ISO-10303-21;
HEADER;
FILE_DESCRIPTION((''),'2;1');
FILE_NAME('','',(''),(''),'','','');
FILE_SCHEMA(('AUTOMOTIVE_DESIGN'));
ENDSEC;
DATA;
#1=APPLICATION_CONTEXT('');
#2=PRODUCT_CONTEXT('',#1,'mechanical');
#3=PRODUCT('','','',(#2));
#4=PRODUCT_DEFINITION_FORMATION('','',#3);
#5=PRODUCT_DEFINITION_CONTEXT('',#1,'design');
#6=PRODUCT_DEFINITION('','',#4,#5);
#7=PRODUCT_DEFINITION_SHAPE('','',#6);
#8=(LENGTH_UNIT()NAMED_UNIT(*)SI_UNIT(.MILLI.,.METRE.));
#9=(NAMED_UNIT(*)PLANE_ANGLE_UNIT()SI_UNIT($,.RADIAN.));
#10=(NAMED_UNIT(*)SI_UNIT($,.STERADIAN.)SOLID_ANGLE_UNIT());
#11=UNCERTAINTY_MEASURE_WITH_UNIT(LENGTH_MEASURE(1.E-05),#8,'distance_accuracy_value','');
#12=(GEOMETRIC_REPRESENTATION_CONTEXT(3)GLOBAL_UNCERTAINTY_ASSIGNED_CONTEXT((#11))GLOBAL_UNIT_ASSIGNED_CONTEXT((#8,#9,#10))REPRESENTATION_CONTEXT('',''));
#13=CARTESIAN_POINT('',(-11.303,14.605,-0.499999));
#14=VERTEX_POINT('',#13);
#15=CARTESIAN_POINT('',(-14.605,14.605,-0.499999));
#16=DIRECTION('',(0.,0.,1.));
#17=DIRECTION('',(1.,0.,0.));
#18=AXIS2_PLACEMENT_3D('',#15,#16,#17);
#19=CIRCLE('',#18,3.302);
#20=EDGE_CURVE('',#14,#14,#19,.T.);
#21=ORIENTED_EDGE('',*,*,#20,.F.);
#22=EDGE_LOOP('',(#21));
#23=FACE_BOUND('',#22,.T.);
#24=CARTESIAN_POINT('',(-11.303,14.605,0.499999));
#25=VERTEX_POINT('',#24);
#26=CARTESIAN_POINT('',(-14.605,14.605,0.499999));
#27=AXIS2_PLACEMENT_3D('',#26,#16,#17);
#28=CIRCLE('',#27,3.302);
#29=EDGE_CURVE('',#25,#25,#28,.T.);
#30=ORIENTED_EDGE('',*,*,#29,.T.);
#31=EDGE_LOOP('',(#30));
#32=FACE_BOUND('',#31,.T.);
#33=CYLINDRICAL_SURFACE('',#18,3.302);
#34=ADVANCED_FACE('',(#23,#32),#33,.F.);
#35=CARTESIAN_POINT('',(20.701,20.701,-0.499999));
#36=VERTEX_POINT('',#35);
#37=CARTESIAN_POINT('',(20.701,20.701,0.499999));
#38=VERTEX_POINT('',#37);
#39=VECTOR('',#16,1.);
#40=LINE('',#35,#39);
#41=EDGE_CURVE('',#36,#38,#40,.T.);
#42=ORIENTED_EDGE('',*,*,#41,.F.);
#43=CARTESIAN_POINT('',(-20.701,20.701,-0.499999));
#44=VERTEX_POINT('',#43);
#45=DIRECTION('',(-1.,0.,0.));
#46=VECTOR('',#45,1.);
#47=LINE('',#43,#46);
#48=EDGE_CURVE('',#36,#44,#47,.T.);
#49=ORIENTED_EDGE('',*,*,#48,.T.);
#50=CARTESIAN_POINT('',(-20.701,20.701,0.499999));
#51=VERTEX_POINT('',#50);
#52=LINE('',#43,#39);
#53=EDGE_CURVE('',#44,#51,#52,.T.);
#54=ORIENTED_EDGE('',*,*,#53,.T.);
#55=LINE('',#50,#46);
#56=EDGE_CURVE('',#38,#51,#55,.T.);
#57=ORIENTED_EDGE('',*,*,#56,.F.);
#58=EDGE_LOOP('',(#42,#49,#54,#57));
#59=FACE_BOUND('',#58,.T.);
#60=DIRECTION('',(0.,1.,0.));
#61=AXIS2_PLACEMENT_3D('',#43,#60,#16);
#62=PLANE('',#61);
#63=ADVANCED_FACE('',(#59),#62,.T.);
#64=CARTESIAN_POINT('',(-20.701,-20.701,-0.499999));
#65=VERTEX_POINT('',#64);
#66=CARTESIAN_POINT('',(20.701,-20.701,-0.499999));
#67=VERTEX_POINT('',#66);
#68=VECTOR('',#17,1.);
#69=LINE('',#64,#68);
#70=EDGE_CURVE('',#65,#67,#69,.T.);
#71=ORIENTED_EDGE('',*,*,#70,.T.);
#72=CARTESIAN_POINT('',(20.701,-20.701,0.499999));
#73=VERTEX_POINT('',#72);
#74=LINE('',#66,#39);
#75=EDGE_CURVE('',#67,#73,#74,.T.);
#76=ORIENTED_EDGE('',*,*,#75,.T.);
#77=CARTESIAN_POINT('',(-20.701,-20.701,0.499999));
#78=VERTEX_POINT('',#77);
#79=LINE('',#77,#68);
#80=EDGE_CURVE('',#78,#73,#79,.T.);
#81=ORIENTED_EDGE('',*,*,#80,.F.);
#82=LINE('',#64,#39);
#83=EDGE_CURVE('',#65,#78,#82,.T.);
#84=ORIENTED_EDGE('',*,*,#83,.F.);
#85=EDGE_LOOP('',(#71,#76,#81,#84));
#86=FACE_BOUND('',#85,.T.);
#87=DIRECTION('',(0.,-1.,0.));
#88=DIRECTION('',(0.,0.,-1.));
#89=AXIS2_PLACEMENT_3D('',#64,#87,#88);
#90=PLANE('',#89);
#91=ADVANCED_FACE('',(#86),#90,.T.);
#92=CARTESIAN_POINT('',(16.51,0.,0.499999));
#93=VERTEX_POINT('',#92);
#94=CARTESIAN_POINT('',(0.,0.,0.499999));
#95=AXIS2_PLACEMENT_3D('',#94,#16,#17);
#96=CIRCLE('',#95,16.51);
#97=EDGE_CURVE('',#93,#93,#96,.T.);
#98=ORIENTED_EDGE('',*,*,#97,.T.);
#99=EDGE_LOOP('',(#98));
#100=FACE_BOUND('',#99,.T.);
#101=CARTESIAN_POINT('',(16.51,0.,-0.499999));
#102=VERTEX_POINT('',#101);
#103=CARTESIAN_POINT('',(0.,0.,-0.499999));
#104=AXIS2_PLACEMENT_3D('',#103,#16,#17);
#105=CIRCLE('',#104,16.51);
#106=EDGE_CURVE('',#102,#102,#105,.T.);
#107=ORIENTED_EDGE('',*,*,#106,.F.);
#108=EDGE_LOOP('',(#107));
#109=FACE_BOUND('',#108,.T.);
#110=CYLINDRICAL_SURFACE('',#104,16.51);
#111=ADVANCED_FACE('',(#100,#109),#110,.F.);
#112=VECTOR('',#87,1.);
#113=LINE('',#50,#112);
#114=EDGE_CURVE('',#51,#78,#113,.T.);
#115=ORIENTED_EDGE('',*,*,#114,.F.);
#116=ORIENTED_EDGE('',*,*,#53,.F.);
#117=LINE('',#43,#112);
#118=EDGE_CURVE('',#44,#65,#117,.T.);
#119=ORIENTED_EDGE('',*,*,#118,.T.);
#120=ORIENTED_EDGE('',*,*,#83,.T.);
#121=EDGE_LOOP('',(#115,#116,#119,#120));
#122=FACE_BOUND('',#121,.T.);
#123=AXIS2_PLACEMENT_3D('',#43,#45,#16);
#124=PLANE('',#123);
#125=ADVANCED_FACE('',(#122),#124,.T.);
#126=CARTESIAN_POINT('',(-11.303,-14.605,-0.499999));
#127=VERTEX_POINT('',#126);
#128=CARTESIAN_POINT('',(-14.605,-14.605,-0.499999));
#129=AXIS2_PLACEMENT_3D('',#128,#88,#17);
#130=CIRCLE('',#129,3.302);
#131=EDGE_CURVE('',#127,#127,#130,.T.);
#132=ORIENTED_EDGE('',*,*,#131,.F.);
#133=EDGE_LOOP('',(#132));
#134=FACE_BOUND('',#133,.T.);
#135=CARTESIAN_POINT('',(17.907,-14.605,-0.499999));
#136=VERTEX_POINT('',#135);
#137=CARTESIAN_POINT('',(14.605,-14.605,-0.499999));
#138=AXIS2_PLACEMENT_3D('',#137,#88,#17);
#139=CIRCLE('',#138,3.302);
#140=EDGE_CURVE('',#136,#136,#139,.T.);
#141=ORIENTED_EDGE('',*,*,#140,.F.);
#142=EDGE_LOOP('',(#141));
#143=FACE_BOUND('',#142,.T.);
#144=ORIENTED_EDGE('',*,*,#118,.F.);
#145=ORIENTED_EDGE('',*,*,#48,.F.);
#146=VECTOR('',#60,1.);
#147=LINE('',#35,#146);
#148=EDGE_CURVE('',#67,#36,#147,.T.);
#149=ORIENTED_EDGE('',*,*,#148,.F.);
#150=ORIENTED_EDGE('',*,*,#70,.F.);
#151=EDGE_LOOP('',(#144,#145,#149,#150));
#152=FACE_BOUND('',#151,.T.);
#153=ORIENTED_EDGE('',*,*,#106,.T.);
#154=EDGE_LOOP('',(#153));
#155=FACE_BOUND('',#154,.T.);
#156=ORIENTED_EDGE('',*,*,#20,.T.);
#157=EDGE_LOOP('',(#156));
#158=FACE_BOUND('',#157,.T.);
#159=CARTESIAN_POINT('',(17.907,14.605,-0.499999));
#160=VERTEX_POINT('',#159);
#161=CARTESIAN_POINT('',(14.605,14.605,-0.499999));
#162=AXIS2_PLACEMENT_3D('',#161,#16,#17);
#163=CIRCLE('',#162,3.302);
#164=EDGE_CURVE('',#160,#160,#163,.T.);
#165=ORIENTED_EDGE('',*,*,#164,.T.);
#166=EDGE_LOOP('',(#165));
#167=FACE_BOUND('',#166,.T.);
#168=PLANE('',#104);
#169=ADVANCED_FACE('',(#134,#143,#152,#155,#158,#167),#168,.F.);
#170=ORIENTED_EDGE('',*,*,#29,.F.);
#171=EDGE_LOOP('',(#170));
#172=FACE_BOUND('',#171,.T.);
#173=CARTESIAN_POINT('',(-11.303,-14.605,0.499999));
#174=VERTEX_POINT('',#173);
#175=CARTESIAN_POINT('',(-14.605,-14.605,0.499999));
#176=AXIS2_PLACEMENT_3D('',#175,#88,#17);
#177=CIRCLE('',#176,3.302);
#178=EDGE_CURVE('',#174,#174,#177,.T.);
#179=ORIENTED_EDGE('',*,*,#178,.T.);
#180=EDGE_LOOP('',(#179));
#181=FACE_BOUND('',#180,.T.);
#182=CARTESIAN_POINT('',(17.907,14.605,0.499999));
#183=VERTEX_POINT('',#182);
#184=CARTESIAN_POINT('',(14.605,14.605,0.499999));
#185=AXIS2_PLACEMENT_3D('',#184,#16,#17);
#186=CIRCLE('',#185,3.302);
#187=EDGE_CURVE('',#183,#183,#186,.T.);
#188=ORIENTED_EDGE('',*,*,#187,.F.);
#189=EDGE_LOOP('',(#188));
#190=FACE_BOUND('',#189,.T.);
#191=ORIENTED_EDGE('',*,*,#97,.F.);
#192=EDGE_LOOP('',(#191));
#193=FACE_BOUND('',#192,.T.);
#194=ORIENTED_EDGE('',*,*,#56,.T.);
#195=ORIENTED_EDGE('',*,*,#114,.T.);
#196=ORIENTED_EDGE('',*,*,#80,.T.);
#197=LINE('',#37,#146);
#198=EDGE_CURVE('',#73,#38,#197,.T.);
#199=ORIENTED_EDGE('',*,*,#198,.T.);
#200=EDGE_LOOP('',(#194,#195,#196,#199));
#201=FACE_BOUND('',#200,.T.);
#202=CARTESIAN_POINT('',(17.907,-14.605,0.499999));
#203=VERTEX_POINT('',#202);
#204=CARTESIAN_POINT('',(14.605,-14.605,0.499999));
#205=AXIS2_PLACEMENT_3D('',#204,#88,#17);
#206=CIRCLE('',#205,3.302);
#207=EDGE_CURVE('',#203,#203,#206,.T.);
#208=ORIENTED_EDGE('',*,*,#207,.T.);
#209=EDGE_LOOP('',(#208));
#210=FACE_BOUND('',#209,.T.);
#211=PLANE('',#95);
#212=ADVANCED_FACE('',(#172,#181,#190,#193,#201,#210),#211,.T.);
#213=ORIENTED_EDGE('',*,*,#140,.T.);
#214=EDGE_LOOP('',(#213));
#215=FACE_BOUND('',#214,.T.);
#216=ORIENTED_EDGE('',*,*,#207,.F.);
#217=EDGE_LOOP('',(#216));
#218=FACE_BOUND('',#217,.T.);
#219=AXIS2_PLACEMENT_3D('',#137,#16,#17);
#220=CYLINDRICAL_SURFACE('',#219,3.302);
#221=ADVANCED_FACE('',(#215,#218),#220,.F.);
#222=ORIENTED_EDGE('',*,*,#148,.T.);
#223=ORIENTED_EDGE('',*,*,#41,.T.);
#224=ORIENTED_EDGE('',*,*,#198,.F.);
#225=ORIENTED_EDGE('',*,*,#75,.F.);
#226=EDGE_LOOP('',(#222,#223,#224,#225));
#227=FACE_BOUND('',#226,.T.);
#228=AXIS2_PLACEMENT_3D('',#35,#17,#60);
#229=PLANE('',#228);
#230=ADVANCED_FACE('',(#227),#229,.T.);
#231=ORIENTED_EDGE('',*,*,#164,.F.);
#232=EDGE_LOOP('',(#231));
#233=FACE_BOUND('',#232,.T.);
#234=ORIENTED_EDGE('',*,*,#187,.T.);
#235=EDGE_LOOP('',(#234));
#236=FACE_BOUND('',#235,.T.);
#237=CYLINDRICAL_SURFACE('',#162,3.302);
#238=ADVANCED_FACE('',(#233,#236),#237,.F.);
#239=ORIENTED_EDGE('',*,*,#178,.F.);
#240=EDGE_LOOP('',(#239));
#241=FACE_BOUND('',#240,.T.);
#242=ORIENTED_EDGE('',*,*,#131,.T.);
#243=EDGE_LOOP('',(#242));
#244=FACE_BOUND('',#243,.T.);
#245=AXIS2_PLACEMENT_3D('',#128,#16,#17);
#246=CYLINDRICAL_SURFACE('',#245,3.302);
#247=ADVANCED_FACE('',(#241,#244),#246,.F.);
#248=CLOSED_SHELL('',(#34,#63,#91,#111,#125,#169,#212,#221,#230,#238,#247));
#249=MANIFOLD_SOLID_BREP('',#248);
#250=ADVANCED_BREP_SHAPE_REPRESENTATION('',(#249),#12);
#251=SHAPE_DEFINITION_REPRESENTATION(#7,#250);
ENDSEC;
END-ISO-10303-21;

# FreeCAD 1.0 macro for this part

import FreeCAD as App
import Part
import Sketcher

V = App.Vector
Q = App.Units.Quantity

doc = App.newDocument("Part")
body = doc.addObject("PartDesign::Body", "Body")

# Sketch on XY plane
sketch1 = body.newObject("Sketcher::SketchObject", "Sketch")
sketch1.AttachmentSupport = (doc.getObject("XY_Plane"), [""])
sketch1.MapMode = "FlatFace"
sketch1.addGeometry([
    Part.LineSegment(V(-20.701, 20.701, 0), V(-20.701, -20.701, 0)),
    Part.LineSegment(V(-20.701, -20.701, 0), V(20.701, -20.701, 0)),
    Part.LineSegment(V(20.701, -20.701, 0), V(20.701, 20.701, 0)),
    Part.LineSegment(V(20.701, 20.701, 0), V(-20.701, 20.701, 0)),
], False)
sketch1.addConstraint([
    Sketcher.Constraint("Coincident", 0, 2, 1, 1),
    Sketcher.Constraint("Coincident", 1, 2, 2, 1),
    Sketcher.Constraint("Coincident", 2, 2, 3, 1),
    Sketcher.Constraint("Coincident", 3, 2, 0, 1),
    Sketcher.Constraint("Vertical", 0),
    Sketcher.Constraint("Horizontal", 1),
    Sketcher.Constraint("Vertical", 2),
    Sketcher.Constraint("Horizontal", 3),
    Sketcher.Constraint("Symmetric", 0, 2, 2, 2, -1, 1),
    Sketcher.Constraint("Equal", 3, 0),
    Sketcher.Constraint("DistanceX", 1, 1, 1, 2, Q("1.63 in")),
])
pad1 = body.newObject("PartDesign::Pad", "Pad")
pad1.Profile = sketch1
pad1.Type = "TwoLengths"
pad1.Length = 0.499999
pad1.Length2 = 0.499999

# Sketch on XY plane
sketch2 = body.newObject("Sketcher::SketchObject", "Sketch001")
sketch2.AttachmentSupport = (doc.getObject("XY_Plane"), [""])
sketch2.MapMode = "FlatFace"
sketch2.AttachmentOffset = App.Placement(V(0, 0, 0.499999), App.Rotation())
sketch2.addGeometry(Part.Circle(V(0, 0, 0), V(0, 0, 1), 16.51), False)
sketch2.addConstraint([
    Sketcher.Constraint("Coincident", 0, 3, -1, 1),
    Sketcher.Constraint("Diameter", 0, Q("1.3 in")),
])
pocket1 = body.newObject("PartDesign::Pocket", "Pocket")
pocket1.Profile = sketch2
pocket1.Type = "ThroughAll"

# Sketch on XY plane
sketch3 = body.newObject("Sketcher::SketchObject", "Sketch002")
sketch3.AttachmentSupport = (doc.getObject("XY_Plane"), [""])
sketch3.MapMode = "FlatFace"
sketch3.AttachmentOffset = App.Placement(V(0, 0, 0.499999), App.Rotation())
sketch3.addGeometry([
    Part.Circle(V(-14.605, 14.605, 0), V(0, 0, 1), 3.302),
    Part.Circle(V(14.605, 14.605, 0), V(0, 0, 1), 3.302),
], False)
sketch3.addConstraint([
    Sketcher.Constraint("Equal", 0, 1),
    Sketcher.Constraint("Symmetric", 0, 3, 1, 3, -2),
    Sketcher.Constraint("Diameter", 0, Q("0.26 in")),
    Sketcher.Constraint("DistanceX", 0, 3, 1, 3, Q("1.15 in")),
    Sketcher.Constraint("DistanceY", -1, 1, 0, 3, Q("0.575 in")),
])
pocket2 = body.newObject("PartDesign::Pocket", "Pocket001")
pocket2.Profile = sketch3
pocket2.Type = "ThroughAll"
doc.recompute()

mirrored = body.newObject("PartDesign::Mirrored", "Mirrored")
mirrored.Originals = [pocket2]
mirrored.MirrorPlane = (doc.getObject("XZ_Plane"), [""])
body.Tip = mirrored

doc.recompute()
